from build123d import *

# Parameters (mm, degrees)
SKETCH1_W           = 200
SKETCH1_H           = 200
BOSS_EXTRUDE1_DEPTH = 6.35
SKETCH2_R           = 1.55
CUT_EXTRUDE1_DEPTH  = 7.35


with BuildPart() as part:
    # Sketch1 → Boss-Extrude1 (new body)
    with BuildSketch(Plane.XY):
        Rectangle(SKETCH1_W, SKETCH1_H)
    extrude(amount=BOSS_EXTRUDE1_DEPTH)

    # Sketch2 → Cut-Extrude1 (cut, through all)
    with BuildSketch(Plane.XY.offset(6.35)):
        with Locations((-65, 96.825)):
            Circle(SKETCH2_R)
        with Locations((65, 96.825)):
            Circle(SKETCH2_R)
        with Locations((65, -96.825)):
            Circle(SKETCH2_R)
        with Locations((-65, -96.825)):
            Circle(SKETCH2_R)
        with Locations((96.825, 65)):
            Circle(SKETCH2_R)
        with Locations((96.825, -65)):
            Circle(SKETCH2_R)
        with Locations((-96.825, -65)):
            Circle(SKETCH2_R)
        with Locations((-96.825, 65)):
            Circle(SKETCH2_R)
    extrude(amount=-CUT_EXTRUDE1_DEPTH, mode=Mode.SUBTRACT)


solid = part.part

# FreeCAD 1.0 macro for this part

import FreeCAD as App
import Part
import Sketcher

V = App.Vector

doc = App.newDocument("Part")
body = doc.addObject("PartDesign::Body", "Body")

# Sketch on XY plane
sketch1 = body.newObject("Sketcher::SketchObject", "Sketch")
sketch1.AttachmentSupport = (doc.getObject("XY_Plane"), [""])
sketch1.MapMode = "FlatFace"
sketch1.addGeometry([
    Part.LineSegment(V(-100, 100, 0), V(-100, -100, 0)),
    Part.LineSegment(V(-100, -100, 0), V(100, -100, 0)),
    Part.LineSegment(V(100, -100, 0), V(100, 100, 0)),
    Part.LineSegment(V(100, 100, 0), V(-100, 100, 0)),
], False)
sketch1.addConstraint([
    Sketcher.Constraint("Coincident", 0, 2, 1, 1),
    Sketcher.Constraint("Coincident", 1, 2, 2, 1),
    Sketcher.Constraint("Coincident", 2, 2, 3, 1),
    Sketcher.Constraint("Coincident", 3, 2, 0, 1),
    Sketcher.Constraint("Vertical", 0),
    Sketcher.Constraint("Horizontal", 1),
    Sketcher.Constraint("Vertical", 2),
    Sketcher.Constraint("Horizontal", 3),
    Sketcher.Constraint("Symmetric", 0, 2, 2, 2, -1, 1),
    Sketcher.Constraint("Equal", 3, 0),
    Sketcher.Constraint("DistanceX", 1, 1, 1, 2, 200.0),
])
pad1 = body.newObject("PartDesign::Pad", "Pad")
pad1.Profile = sketch1
pad1.Length = 6.35

# Sketch on XY plane
sketch2 = body.newObject("Sketcher::SketchObject", "Sketch001")
sketch2.AttachmentSupport = (doc.getObject("XY_Plane"), [""])
sketch2.MapMode = "FlatFace"
sketch2.AttachmentOffset = App.Placement(V(0, 0, 6.35), App.Rotation())
sketch2.addGeometry([
    Part.Circle(V(-65, 96.8, 0), V(0, 0, 1), 1.6),  # 0
    Part.Circle(V(65, 96.8, 0), V(0, 0, 1), 1.6),  # 1
    Part.Circle(V(65, -96.8, 0), V(0, 0, 1), 1.6),  # 2
    Part.Circle(V(-65, -96.8, 0), V(0, 0, 1), 1.6),  # 3
    Part.Circle(V(96.8, 65, 0), V(0, 0, 1), 1.6),  # 4
    Part.Circle(V(96.8, -65, 0), V(0, 0, 1), 1.6),  # 5
    Part.Circle(V(-96.8, -65, 0), V(0, 0, 1), 1.6),  # 6
    Part.Circle(V(-96.8, 65, 0), V(0, 0, 1), 1.6),  # 7
], False)
sketch2.addConstraint([
    Sketcher.Constraint("Equal", 0, 1),
    Sketcher.Constraint("Equal", 1, 2),
    Sketcher.Constraint("Equal", 2, 3),
    Sketcher.Constraint("Equal", 3, 4),
    Sketcher.Constraint("Equal", 4, 5),
    Sketcher.Constraint("Equal", 5, 6),
    Sketcher.Constraint("Equal", 6, 7),
    Sketcher.Constraint("Symmetric", 0, 3, 2, 3, -1, 1),
    Sketcher.Constraint("Symmetric", 1, 3, 3, 3, -1, 1),
    Sketcher.Constraint("Symmetric", 4, 3, 6, 3, -1, 1),
    Sketcher.Constraint("Symmetric", 5, 3, 7, 3, -1, 1),
    Sketcher.Constraint("Symmetric", 0, 3, 1, 3, -2),
    Sketcher.Constraint("Symmetric", 5, 3, 6, 3, -2),
    Sketcher.Constraint("Diameter", 0, 3.1),
    Sketcher.Constraint("DistanceX", 0, 3, -1, 1, 65.0),
    Sketcher.Constraint("DistanceY", -1, 1, 4, 3, 65.0),
    Sketcher.Constraint("DistanceY", 2, 3, 1, 3, 193.65),
    Sketcher.Constraint("DistanceX", 6, 3, 5, 3, 193.65),
])
pocket1 = body.newObject("PartDesign::Pocket", "Pocket")
pocket1.Profile = sketch2
pocket1.Type = "ThroughAll"

doc.recompute()
